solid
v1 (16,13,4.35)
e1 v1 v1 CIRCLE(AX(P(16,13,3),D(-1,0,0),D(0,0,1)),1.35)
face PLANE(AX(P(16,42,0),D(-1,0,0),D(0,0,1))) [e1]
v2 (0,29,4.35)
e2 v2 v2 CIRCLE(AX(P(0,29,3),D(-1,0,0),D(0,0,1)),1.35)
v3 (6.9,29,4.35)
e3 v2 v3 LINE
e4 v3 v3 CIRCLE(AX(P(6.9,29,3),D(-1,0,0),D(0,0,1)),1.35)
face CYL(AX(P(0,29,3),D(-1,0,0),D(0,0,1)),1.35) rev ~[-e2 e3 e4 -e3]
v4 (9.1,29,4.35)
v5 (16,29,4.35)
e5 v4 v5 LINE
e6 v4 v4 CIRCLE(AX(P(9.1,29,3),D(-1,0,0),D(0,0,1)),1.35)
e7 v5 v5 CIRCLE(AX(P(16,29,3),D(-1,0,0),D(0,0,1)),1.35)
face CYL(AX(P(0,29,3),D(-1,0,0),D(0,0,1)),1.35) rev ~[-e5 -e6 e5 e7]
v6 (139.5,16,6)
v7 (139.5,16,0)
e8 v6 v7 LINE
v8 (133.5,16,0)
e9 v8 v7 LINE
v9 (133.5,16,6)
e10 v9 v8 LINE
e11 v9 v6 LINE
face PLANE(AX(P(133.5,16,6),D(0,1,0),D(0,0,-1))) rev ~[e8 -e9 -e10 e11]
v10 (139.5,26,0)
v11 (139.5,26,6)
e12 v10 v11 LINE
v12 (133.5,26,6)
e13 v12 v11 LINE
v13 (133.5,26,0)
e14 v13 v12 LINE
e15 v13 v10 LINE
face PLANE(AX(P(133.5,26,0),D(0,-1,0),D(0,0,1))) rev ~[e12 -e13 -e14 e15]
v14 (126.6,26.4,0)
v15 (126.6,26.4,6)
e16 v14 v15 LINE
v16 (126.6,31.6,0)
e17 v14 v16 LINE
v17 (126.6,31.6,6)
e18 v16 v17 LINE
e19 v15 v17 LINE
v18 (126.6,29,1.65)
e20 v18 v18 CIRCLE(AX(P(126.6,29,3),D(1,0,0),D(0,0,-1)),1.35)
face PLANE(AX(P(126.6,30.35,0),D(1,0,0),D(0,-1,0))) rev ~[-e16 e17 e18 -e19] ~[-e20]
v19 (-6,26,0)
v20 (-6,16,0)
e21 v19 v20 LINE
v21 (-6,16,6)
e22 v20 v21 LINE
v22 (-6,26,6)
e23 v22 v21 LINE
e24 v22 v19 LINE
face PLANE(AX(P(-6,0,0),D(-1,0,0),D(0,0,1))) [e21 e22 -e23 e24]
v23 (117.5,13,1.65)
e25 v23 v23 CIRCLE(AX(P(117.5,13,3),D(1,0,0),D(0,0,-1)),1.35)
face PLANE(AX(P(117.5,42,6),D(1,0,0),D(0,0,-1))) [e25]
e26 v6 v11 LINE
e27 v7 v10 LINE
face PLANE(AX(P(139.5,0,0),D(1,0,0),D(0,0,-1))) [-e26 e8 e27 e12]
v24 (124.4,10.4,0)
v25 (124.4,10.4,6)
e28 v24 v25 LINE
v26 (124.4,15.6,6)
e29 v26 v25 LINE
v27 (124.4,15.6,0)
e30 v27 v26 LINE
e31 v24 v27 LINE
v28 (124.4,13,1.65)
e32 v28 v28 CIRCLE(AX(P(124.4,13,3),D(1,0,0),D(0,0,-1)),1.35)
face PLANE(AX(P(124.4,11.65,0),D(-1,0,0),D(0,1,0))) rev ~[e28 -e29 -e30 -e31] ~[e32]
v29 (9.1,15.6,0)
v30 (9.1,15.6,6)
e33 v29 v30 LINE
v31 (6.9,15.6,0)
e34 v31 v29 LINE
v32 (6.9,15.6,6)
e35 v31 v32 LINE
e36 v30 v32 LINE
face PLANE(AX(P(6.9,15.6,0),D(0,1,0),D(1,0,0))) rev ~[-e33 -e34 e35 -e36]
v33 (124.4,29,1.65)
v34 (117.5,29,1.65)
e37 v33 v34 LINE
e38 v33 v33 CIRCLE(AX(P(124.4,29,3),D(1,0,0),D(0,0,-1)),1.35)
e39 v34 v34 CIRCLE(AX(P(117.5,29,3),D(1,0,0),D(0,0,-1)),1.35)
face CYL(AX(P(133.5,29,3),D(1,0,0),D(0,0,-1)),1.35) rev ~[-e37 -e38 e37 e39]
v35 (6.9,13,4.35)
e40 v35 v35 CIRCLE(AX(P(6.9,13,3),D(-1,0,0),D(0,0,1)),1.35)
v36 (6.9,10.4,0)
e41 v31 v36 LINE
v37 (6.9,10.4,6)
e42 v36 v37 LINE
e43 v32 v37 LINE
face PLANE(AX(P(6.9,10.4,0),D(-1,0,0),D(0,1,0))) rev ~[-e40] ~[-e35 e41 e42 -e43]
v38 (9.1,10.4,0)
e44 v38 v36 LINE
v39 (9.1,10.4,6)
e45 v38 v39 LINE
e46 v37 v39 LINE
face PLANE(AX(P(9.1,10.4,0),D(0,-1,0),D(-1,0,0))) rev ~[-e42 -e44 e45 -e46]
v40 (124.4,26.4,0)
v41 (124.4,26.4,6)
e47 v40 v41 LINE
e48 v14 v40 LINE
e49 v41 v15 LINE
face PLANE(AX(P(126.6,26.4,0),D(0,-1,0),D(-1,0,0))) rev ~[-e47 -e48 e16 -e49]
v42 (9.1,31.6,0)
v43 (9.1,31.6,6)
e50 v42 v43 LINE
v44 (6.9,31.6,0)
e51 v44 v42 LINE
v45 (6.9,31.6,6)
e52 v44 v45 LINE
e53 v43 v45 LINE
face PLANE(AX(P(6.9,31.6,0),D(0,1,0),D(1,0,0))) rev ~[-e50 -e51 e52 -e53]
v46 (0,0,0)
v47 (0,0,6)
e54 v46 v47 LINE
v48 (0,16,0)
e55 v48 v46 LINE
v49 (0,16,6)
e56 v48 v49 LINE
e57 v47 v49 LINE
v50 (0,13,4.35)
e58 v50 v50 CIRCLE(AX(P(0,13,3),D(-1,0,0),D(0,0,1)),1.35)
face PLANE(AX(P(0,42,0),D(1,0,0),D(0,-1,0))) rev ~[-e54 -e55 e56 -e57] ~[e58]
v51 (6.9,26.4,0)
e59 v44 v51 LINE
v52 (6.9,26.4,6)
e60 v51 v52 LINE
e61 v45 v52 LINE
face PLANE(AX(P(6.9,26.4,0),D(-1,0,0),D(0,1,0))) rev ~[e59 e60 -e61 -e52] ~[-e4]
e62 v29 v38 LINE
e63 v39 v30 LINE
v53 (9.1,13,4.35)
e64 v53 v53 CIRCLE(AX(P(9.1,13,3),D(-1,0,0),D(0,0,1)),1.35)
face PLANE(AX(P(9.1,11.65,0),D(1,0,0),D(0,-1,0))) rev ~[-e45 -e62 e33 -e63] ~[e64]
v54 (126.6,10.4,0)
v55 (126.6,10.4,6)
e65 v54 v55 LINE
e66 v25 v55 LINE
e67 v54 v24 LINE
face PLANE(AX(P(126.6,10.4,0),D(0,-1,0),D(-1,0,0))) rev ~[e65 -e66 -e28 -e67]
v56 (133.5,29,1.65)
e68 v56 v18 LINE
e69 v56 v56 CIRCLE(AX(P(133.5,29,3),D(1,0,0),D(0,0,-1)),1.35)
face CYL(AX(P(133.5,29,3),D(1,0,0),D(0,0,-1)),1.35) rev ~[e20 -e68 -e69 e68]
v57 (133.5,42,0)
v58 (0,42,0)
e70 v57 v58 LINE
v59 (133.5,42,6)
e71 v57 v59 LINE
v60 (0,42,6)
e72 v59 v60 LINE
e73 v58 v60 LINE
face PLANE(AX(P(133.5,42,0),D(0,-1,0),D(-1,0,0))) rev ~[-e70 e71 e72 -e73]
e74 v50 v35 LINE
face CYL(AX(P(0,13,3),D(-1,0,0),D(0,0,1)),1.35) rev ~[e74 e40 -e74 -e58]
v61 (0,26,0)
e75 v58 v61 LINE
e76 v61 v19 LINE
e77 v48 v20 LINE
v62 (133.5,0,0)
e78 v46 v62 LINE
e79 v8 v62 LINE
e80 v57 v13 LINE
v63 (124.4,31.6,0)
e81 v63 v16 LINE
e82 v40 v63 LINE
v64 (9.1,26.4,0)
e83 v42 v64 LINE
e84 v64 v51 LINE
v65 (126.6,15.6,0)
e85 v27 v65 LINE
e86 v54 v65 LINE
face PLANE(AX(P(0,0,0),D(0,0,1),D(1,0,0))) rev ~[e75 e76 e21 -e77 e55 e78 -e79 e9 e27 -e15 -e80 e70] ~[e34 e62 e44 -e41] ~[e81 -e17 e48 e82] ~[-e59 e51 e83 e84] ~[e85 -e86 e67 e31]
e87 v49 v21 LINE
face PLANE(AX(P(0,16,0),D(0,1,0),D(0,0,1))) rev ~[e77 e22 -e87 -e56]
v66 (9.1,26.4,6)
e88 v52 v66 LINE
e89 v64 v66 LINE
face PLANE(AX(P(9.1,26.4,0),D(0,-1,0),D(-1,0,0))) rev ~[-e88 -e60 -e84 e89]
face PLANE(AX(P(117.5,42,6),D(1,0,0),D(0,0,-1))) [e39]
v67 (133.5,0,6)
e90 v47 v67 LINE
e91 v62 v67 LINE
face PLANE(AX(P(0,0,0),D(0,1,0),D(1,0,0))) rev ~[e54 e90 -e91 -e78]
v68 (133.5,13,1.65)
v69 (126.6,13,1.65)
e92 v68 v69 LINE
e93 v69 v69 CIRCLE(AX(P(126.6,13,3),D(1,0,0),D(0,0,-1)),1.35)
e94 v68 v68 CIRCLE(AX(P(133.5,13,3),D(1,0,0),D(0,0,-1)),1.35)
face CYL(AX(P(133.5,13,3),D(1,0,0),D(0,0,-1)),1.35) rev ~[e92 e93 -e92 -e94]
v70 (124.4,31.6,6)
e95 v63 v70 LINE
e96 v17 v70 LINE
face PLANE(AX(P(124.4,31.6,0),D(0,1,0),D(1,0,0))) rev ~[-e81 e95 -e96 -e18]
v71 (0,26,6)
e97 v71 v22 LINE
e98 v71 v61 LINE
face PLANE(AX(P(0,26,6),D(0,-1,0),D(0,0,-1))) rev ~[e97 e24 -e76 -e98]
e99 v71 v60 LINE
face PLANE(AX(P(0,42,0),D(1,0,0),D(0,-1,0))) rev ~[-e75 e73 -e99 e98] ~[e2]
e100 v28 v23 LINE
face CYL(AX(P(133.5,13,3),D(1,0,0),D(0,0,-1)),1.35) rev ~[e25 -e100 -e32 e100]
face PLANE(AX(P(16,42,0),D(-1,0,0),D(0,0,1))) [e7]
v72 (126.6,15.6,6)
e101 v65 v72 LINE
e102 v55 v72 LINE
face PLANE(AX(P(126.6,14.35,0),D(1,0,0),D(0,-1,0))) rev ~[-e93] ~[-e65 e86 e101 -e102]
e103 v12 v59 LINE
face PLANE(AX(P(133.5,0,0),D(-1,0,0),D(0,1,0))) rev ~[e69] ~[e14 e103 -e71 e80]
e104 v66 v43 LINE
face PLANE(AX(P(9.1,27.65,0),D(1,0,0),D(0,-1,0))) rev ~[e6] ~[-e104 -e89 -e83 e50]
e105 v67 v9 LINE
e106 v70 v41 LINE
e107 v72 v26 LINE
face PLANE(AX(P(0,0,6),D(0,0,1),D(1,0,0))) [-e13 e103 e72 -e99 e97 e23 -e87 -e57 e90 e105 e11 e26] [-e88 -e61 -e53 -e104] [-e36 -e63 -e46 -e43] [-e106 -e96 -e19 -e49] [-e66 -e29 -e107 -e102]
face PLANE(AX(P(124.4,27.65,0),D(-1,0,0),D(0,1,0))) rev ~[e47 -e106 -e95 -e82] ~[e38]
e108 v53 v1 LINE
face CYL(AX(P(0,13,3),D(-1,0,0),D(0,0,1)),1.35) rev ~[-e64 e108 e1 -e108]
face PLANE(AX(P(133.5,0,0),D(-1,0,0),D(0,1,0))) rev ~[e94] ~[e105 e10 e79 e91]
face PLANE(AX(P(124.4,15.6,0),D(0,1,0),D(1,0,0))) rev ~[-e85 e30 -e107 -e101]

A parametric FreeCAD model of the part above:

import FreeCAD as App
import Part
import Sketcher

doc = App.newDocument("Part")
body = doc.addObject("PartDesign::Body", "Body")

# Sketch on XY plane
sketch1 = doc.addObject("Sketcher::SketchObject", "Sketch")
body.addObject(sketch1)
sketch1.AttachmentSupport = (doc.XY_Plane, [""])
sketch1.MapMode = "FlatFace"
sketch1.addGeometry(Part.LineSegment(App.Vector(0, 42, 0), App.Vector(0, 0, 0)), False)
sketch1.addGeometry(Part.LineSegment(App.Vector(0, 0, 0), App.Vector(134, 0, 0)), False)
sketch1.addGeometry(Part.LineSegment(App.Vector(134, 0, 0), App.Vector(134, 42, 0)), False)
sketch1.addGeometry(Part.LineSegment(App.Vector(134, 42, 0), App.Vector(0, 42, 0)), False)
sketch1.addConstraint(Sketcher.Constraint("Coincident", 0, 2, 1, 1))
sketch1.addConstraint(Sketcher.Constraint("Coincident", 1, 2, 2, 1))
sketch1.addConstraint(Sketcher.Constraint("Coincident", 2, 2, 3, 1))
sketch1.addConstraint(Sketcher.Constraint("Coincident", 3, 2, 0, 1))
sketch1.addConstraint(Sketcher.Constraint("Vertical", 0))
sketch1.addConstraint(Sketcher.Constraint("Horizontal", 1))
sketch1.addConstraint(Sketcher.Constraint("Vertical", 2))
sketch1.addConstraint(Sketcher.Constraint("Horizontal", 3))
sketch1.addConstraint(Sketcher.Constraint("Coincident", 0, 2, -1, 1))
sketch1.addConstraint(Sketcher.Constraint("DistanceY", 0, 2, 0, 1, 42.0))
sketch1.addConstraint(Sketcher.Constraint("DistanceX", 1, 1, 1, 2, 133.5))
pad1 = doc.addObject("PartDesign::Pad", "Pad")
body.addObject(pad1)
pad1.Profile = sketch1
pad1.Length = 6

# Sketch on YZ plane
sketch2 = doc.addObject("Sketcher::SketchObject", "Sketch001")
body.addObject(sketch2)
sketch2.AttachmentSupport = (doc.YZ_Plane, [""])
sketch2.MapMode = "FlatFace"
sketch2.AttachmentOffset = App.Placement(App.Vector(0, 0, 133.5), App.Rotation())
sketch2.addGeometry(Part.LineSegment(App.Vector(16, 6, 0), App.Vector(16, 0, 0)), False)
sketch2.addGeometry(Part.LineSegment(App.Vector(16, 0, 0), App.Vector(26, 0, 0)), False)
sketch2.addGeometry(Part.LineSegment(App.Vector(26, 0, 0), App.Vector(26, 6, 0)), False)
sketch2.addGeometry(Part.LineSegment(App.Vector(26, 6, 0), App.Vector(16, 6, 0)), False)
sketch2.addConstraint(Sketcher.Constraint("Coincident", 0, 2, 1, 1))
sketch2.addConstraint(Sketcher.Constraint("Coincident", 1, 2, 2, 1))
sketch2.addConstraint(Sketcher.Constraint("Coincident", 2, 2, 3, 1))
sketch2.addConstraint(Sketcher.Constraint("Coincident", 3, 2, 0, 1))
sketch2.addConstraint(Sketcher.Constraint("Vertical", 0))
sketch2.addConstraint(Sketcher.Constraint("Horizontal", 1))
sketch2.addConstraint(Sketcher.Constraint("Vertical", 2))
sketch2.addConstraint(Sketcher.Constraint("Horizontal", 3))
sketch2.addConstraint(Sketcher.Constraint("PointOnObject", 0, 2, -1))
sketch2.addConstraint(Sketcher.Constraint("DistanceX", 1, 1, 1, 2, 10.0))
sketch2.addConstraint(Sketcher.Constraint("DistanceY", 0, 2, 0, 1, 6.0))
sketch2.addConstraint(Sketcher.Constraint("DistanceX", -1, 1, 0, 2, 16.0))
pad2 = doc.addObject("PartDesign::Pad", "Pad001")
body.addObject(pad2)
pad2.Profile = sketch2
pad2.Length = 6

# Sketch on YZ plane
sketch3 = doc.addObject("Sketcher::SketchObject", "Sketch002")
body.addObject(sketch3)
sketch3.AttachmentSupport = (doc.YZ_Plane, [""])
sketch3.MapMode = "FlatFace"
sketch3.addGeometry(Part.LineSegment(App.Vector(16, 6, 0), App.Vector(26, 6, 0)), False)
sketch3.addGeometry(Part.LineSegment(App.Vector(26, 6, 0), App.Vector(26, 0, 0)), False)
sketch3.addGeometry(Part.LineSegment(App.Vector(26, 0, 0), App.Vector(16, 0, 0)), False)
sketch3.addGeometry(Part.LineSegment(App.Vector(16, 0, 0), App.Vector(16, 6, 0)), False)
sketch3.addConstraint(Sketcher.Constraint("Coincident", 0, 2, 1, 1))
sketch3.addConstraint(Sketcher.Constraint("Coincident", 1, 2, 2, 1))
sketch3.addConstraint(Sketcher.Constraint("Coincident", 2, 2, 3, 1))
sketch3.addConstraint(Sketcher.Constraint("Coincident", 3, 2, 0, 1))
sketch3.addConstraint(Sketcher.Constraint("Horizontal", 0))
sketch3.addConstraint(Sketcher.Constraint("Vertical", 1))
sketch3.addConstraint(Sketcher.Constraint("Horizontal", 2))
sketch3.addConstraint(Sketcher.Constraint("Vertical", 3))
sketch3.addConstraint(Sketcher.Constraint("PointOnObject", 1, 2, -1))
sketch3.addConstraint(Sketcher.Constraint("DistanceX", 0, 1, 0, 2, 10.0))
sketch3.addConstraint(Sketcher.Constraint("DistanceY", 1, 2, 1, 1, 6.0))
sketch3.addConstraint(Sketcher.Constraint("DistanceX", -1, 1, 0, 2, 26.0))
pad3 = doc.addObject("PartDesign::Pad", "Pad002")
body.addObject(pad3)
pad3.Profile = sketch3
pad3.Length = 6
pad3.Reversed = True

# Sketch on YZ plane
sketch4 = doc.addObject("Sketcher::SketchObject", "Sketch003")
body.addObject(sketch4)
sketch4.AttachmentSupport = (doc.YZ_Plane, [""])
sketch4.MapMode = "FlatFace"
sketch4.addGeometry(Part.Circle(App.Vector(29, 3, 0), App.Vector(0, 0, 1), 1.4), False)
sketch4.addGeometry(Part.Circle(App.Vector(13, 3, 0), App.Vector(0, 0, 1), 1.4), False)
sketch4.addConstraint(Sketcher.Constraint("Equal", 0, 1))
sketch4.addConstraint(Sketcher.Constraint("Horizontal", 0, 3, 1, 3))
sketch4.addConstraint(Sketcher.Constraint("Diameter", 0, 2.7))
sketch4.addConstraint(Sketcher.Constraint("DistanceX", -1, 1, 0, 3, 29.0))
sketch4.addConstraint(Sketcher.Constraint("DistanceY", -1, 1, 0, 3, 3.0))
sketch4.addConstraint(Sketcher.Constraint("DistanceX", -1, 1, 1, 3, 13.0))
pocket1 = doc.addObject("PartDesign::Pocket", "Pocket")
body.addObject(pocket1)
pocket1.Profile = sketch4
pocket1.Length = 16
pocket1.Reversed = True

# Sketch on YZ plane
sketch5 = doc.addObject("Sketcher::SketchObject", "Sketch004")
body.addObject(sketch5)
sketch5.AttachmentSupport = (doc.YZ_Plane, [""])
sketch5.MapMode = "FlatFace"
sketch5.AttachmentOffset = App.Placement(App.Vector(0, 0, 133.5), App.Rotation())
sketch5.addGeometry(Part.Circle(App.Vector(29, 3, 0), App.Vector(0, 0, 1), 1.4), False)
sketch5.addGeometry(Part.Circle(App.Vector(13, 3, 0), App.Vector(0, 0, 1), 1.4), False)
sketch5.addConstraint(Sketcher.Constraint("Equal", 0, 1))
sketch5.addConstraint(Sketcher.Constraint("Horizontal", 0, 3, 1, 3))
sketch5.addConstraint(Sketcher.Constraint("Diameter", 0, 2.7))
sketch5.addConstraint(Sketcher.Constraint("DistanceX", -1, 1, 0, 3, 29.0))
sketch5.addConstraint(Sketcher.Constraint("DistanceY", -1, 1, 0, 3, 3.0))
sketch5.addConstraint(Sketcher.Constraint("DistanceX", -1, 1, 1, 3, 13.0))
pocket2 = doc.addObject("PartDesign::Pocket", "Pocket001")
body.addObject(pocket2)
pocket2.Profile = sketch5
pocket2.Length = 16

# Sketch on XY plane
sketch6 = doc.addObject("Sketcher::SketchObject", "Sketch005")
body.addObject(sketch6)
sketch6.AttachmentSupport = (doc.XY_Plane, [""])
sketch6.MapMode = "FlatFace"
sketch6.addGeometry(Part.LineSegment(App.Vector(126.6, 10.4, 0), App.Vector(124.4, 10.4, 0)), False)
sketch6.addGeometry(Part.LineSegment(App.Vector(124.4, 10.4, 0), App.Vector(124.4, 15.6, 0)), False)
sketch6.addGeometry(Part.LineSegment(App.Vector(124.4, 15.6, 0), App.Vector(126.6, 15.6, 0)), False)
sketch6.addGeometry(Part.LineSegment(App.Vector(126.6, 15.6, 0), App.Vector(126.6, 10.4, 0)), False)
sketch6.addGeometry(Part.LineSegment(App.Vector(6.9, 10.4, 0), App.Vector(6.9, 15.6, 0)), False)
sketch6.addGeometry(Part.LineSegment(App.Vector(6.9, 15.6, 0), App.Vector(9.1, 15.6, 0)), False)
sketch6.addGeometry(Part.LineSegment(App.Vector(9.1, 15.6, 0), App.Vector(9.1, 10.4, 0)), False)
sketch6.addGeometry(Part.LineSegment(App.Vector(9.1, 10.4, 0), App.Vector(6.9, 10.4, 0)), False)
sketch6.addGeometry(Part.LineSegment(App.Vector(126.6, 26.4, 0), App.Vector(124.4, 26.4, 0)), False)
sketch6.addGeometry(Part.LineSegment(App.Vector(124.4, 26.4, 0), App.Vector(124.4, 31.6, 0)), False)
sketch6.addGeometry(Part.LineSegment(App.Vector(124.4, 31.6, 0), App.Vector(126.6, 31.6, 0)), False)
sketch6.addGeometry(Part.LineSegment(App.Vector(126.6, 31.6, 0), App.Vector(126.6, 26.4, 0)), False)
sketch6.addGeometry(Part.LineSegment(App.Vector(6.9, 26.4, 0), App.Vector(6.9, 31.6, 0)), False)
sketch6.addGeometry(Part.LineSegment(App.Vector(6.9, 31.6, 0), App.Vector(9.1, 31.6, 0)), False)
sketch6.addGeometry(Part.LineSegment(App.Vector(9.1, 31.6, 0), App.Vector(9.1, 26.4, 0)), False)
sketch6.addGeometry(Part.LineSegment(App.Vector(9.1, 26.4, 0), App.Vector(6.9, 26.4, 0)), False)
sketch6.addConstraint(Sketcher.Constraint("Coincident", 0, 2, 1, 1))
sketch6.addConstraint(Sketcher.Constraint("Coincident", 1, 2, 2, 1))
sketch6.addConstraint(Sketcher.Constraint("Coincident", 2, 2, 3, 1))
sketch6.addConstraint(Sketcher.Constraint("Coincident", 3, 2, 0, 1))
sketch6.addConstraint(Sketcher.Constraint("Coincident", 4, 2, 5, 1))
sketch6.addConstraint(Sketcher.Constraint("Coincident", 5, 2, 6, 1))
sketch6.addConstraint(Sketcher.Constraint("Coincident", 6, 2, 7, 1))
sketch6.addConstraint(Sketcher.Constraint("Coincident", 7, 2, 4, 1))
sketch6.addConstraint(Sketcher.Constraint("Coincident", 8, 2, 9, 1))
sketch6.addConstraint(Sketcher.Constraint("Coincident", 9, 2, 10, 1))
sketch6.addConstraint(Sketcher.Constraint("Coincident", 10, 2, 11, 1))
sketch6.addConstraint(Sketcher.Constraint("Coincident", 11, 2, 8, 1))
sketch6.addConstraint(Sketcher.Constraint("Coincident", 12, 2, 13, 1))
sketch6.addConstraint(Sketcher.Constraint("Coincident", 13, 2, 14, 1))
sketch6.addConstraint(Sketcher.Constraint("Coincident", 14, 2, 15, 1))
sketch6.addConstraint(Sketcher.Constraint("Coincident", 15, 2, 12, 1))
sketch6.addConstraint(Sketcher.Constraint("Horizontal", 0))
sketch6.addConstraint(Sketcher.Constraint("Vertical", 1))
sketch6.addConstraint(Sketcher.Constraint("Horizontal", 2))
sketch6.addConstraint(Sketcher.Constraint("Vertical", 3))
sketch6.addConstraint(Sketcher.Constraint("Vertical", 4))
sketch6.addConstraint(Sketcher.Constraint("Horizontal", 5))
sketch6.addConstraint(Sketcher.Constraint("Vertical", 6))
sketch6.addConstraint(Sketcher.Constraint("Horizontal", 7))
sketch6.addConstraint(Sketcher.Constraint("Horizontal", 8))
sketch6.addConstraint(Sketcher.Constraint("Vertical", 9))
sketch6.addConstraint(Sketcher.Constraint("Horizontal", 10))
sketch6.addConstraint(Sketcher.Constraint("Vertical", 11))
sketch6.addConstraint(Sketcher.Constraint("Vertical", 12))
sketch6.addConstraint(Sketcher.Constraint("Horizontal", 13))
sketch6.addConstraint(Sketcher.Constraint("Vertical", 14))
sketch6.addConstraint(Sketcher.Constraint("Horizontal", 15))
sketch6.addConstraint(Sketcher.Constraint("Horizontal", 2, 2, 4, 2))
sketch6.addConstraint(Sketcher.Constraint("Horizontal", 3, 2, 6, 2))
sketch6.addConstraint(Sketcher.Constraint("Horizontal", 10, 2, 12, 2))
sketch6.addConstraint(Sketcher.Constraint("Horizontal", 11, 2, 14, 2))
sketch6.addConstraint(Sketcher.Constraint("Vertical", 1, 2, 8, 2))
sketch6.addConstraint(Sketcher.Constraint("Vertical", 3, 2, 10, 2))
sketch6.addConstraint(Sketcher.Constraint("Vertical", 7, 2, 12, 2))
sketch6.addConstraint(Sketcher.Constraint("Vertical", 6, 2, 13, 2))
sketch6.addConstraint(Sketcher.Constraint("Equal", 2, 5))
sketch6.addConstraint(Sketcher.Constraint("Equal", 6, 9))
sketch6.addConstraint(Sketcher.Constraint("DistanceX", 0, 2, 0, 1, 2.2))
sketch6.addConstraint(Sketcher.Constraint("DistanceY", 1, 1, 1, 2, 5.2))
sketch6.addConstraint(Sketcher.Constraint("DistanceY", 0, 2, 8, 2, 16.0))
sketch6.addConstraint(Sketcher.Constraint("DistanceX", -1, 1, 0, 2, 124.4))
sketch6.addConstraint(Sketcher.Constraint("DistanceY", -1, 1, 0, 2, 10.4))
sketch6.addConstraint(Sketcher.Constraint("DistanceX", -1, 1, 4, 2, 6.9))
pocket3 = doc.addObject("PartDesign::Pocket", "Pocket002")
body.addObject(pocket3)
pocket3.Profile = sketch6
pocket3.Length = 16
pocket3.Reversed = True

# Sketch on XY plane
sketch7 = doc.addObject("Sketcher::SketchObject", "Sketch006")
body.addObject(sketch7)
sketch7.AttachmentSupport = (doc.XY_Plane, [""])
sketch7.MapMode = "FlatFace"
sketch7.AttachmentOffset = App.Placement(App.Vector(0, 0, 6), App.Rotation())
sketch7.addGeometry(Part.LineSegment(App.Vector(134, 26, 0), App.Vector(134, 16, 0)), False)
sketch7.addGeometry(Part.LineSegment(App.Vector(134, 16, 0), App.Vector(140, 16, 0)), False)
sketch7.addGeometry(Part.LineSegment(App.Vector(140, 16, 0), App.Vector(140, 26, 0)), False)
sketch7.addGeometry(Part.LineSegment(App.Vector(140, 26, 0), App.Vector(134, 26, 0)), False)
sketch7.addGeometry(Part.LineSegment(App.Vector(-6, 16, 0), App.Vector(0, 16, 0)), False)
sketch7.addGeometry(Part.LineSegment(App.Vector(0, 16, 0), App.Vector(0, 26, 0)), False)
sketch7.addGeometry(Part.LineSegment(App.Vector(0, 26, 0), App.Vector(-6, 26, 0)), False)
sketch7.addGeometry(Part.LineSegment(App.Vector(-6, 26, 0), App.Vector(-6, 16, 0)), False)
sketch7.addConstraint(Sketcher.Constraint("Coincident", 0, 2, 1, 1))
sketch7.addConstraint(Sketcher.Constraint("Coincident", 1, 2, 2, 1))
sketch7.addConstraint(Sketcher.Constraint("Coincident", 2, 2, 3, 1))
sketch7.addConstraint(Sketcher.Constraint("Coincident", 3, 2, 0, 1))
sketch7.addConstraint(Sketcher.Constraint("Coincident", 4, 2, 5, 1))
sketch7.addConstraint(Sketcher.Constraint("Coincident", 5, 2, 6, 1))
sketch7.addConstraint(Sketcher.Constraint("Coincident", 6, 2, 7, 1))
sketch7.addConstraint(Sketcher.Constraint("Coincident", 7, 2, 4, 1))
sketch7.addConstraint(Sketcher.Constraint("Vertical", 0))
sketch7.addConstraint(Sketcher.Constraint("Horizontal", 1))
sketch7.addConstraint(Sketcher.Constraint("Vertical", 2))
sketch7.addConstraint(Sketcher.Constraint("Horizontal", 3))
sketch7.addConstraint(Sketcher.Constraint("Horizontal", 4))
sketch7.addConstraint(Sketcher.Constraint("Vertical", 5))
sketch7.addConstraint(Sketcher.Constraint("Horizontal", 6))
sketch7.addConstraint(Sketcher.Constraint("Vertical", 7))
sketch7.addConstraint(Sketcher.Constraint("PointOnObject", 4, 2, -2))
sketch7.addConstraint(Sketcher.Constraint("Horizontal", 1, 2, 4, 2))
sketch7.addConstraint(Sketcher.Constraint("Horizontal", 3, 2, 5, 2))
sketch7.addConstraint(Sketcher.Constraint("Equal", 3, 4))
sketch7.addConstraint(Sketcher.Constraint("DistanceX", 1, 1, 1, 2, 6.0))
sketch7.addConstraint(Sketcher.Constraint("DistanceY", 0, 2, 0, 1, 10.0))
sketch7.addConstraint(Sketcher.Constraint("DistanceY", -1, 1, 0, 2, 16.0))
sketch7.addConstraint(Sketcher.Constraint("DistanceX", -1, 1, 0, 2, 133.5))
pocket4 = doc.addObject("PartDesign::Pocket", "Pocket003")
body.addObject(pocket4)
pocket4.Profile = sketch7
pocket4.Type = "ThroughAll"

# Sketch on YZ plane
sketch8 = doc.addObject("Sketcher::SketchObject", "Sketch007")
body.addObject(sketch8)
sketch8.AttachmentSupport = (doc.YZ_Plane, [""])
sketch8.MapMode = "FlatFace"
sketch8.AttachmentOffset = App.Placement(App.Vector(0, 0, 133.5), App.Rotation())
sketch8.addGeometry(Part.LineSegment(App.Vector(26, 6, 0), App.Vector(16, 6, 0)), False)
sketch8.addGeometry(Part.LineSegment(App.Vector(16, 6, 0), App.Vector(16, 0, 0)), False)
sketch8.addGeometry(Part.LineSegment(App.Vector(16, 0, 0), App.Vector(26, 0, 0)), False)
sketch8.addGeometry(Part.LineSegment(App.Vector(26, 0, 0), App.Vector(26, 6, 0)), False)
sketch8.addConstraint(Sketcher.Constraint("Coincident", 0, 2, 1, 1))
sketch8.addConstraint(Sketcher.Constraint("Coincident", 1, 2, 2, 1))
sketch8.addConstraint(Sketcher.Constraint("Coincident", 2, 2, 3, 1))
sketch8.addConstraint(Sketcher.Constraint("Coincident", 3, 2, 0, 1))
sketch8.addConstraint(Sketcher.Constraint("Horizontal", 0))
sketch8.addConstraint(Sketcher.Constraint("Vertical", 1))
sketch8.addConstraint(Sketcher.Constraint("Horizontal", 2))
sketch8.addConstraint(Sketcher.Constraint("Vertical", 3))
sketch8.addConstraint(Sketcher.Constraint("PointOnObject", 1, 2, -1))
sketch8.addConstraint(Sketcher.Constraint("DistanceX", 0, 2, 0, 1, 10.0))
sketch8.addConstraint(Sketcher.Constraint("DistanceY", 1, 2, 1, 1, 6.0))
sketch8.addConstraint(Sketcher.Constraint("DistanceX", -1, 1, 0, 2, 16.0))
pad4 = doc.addObject("PartDesign::Pad", "Pad003")
body.addObject(pad4)
pad4.Profile = sketch8
pad4.Length = 6

# Sketch on YZ plane
sketch9 = doc.addObject("Sketcher::SketchObject", "Sketch008")
body.addObject(sketch9)
sketch9.AttachmentSupport = (doc.YZ_Plane, [""])
sketch9.MapMode = "FlatFace"
sketch9.addGeometry(Part.LineSegment(App.Vector(16, 0, 0), App.Vector(16, 6, 0)), False)
sketch9.addGeometry(Part.LineSegment(App.Vector(16, 6, 0), App.Vector(26, 6, 0)), False)
sketch9.addGeometry(Part.LineSegment(App.Vector(26, 6, 0), App.Vector(26, 0, 0)), False)
sketch9.addGeometry(Part.LineSegment(App.Vector(26, 0, 0), App.Vector(16, 0, 0)), False)
sketch9.addConstraint(Sketcher.Constraint("Coincident", 0, 2, 1, 1))
sketch9.addConstraint(Sketcher.Constraint("Coincident", 1, 2, 2, 1))
sketch9.addConstraint(Sketcher.Constraint("Coincident", 2, 2, 3, 1))
sketch9.addConstraint(Sketcher.Constraint("Coincident", 3, 2, 0, 1))
sketch9.addConstraint(Sketcher.Constraint("Vertical", 0))
sketch9.addConstraint(Sketcher.Constraint("Horizontal", 1))
sketch9.addConstraint(Sketcher.Constraint("Vertical", 2))
sketch9.addConstraint(Sketcher.Constraint("Horizontal", 3))
sketch9.addConstraint(Sketcher.Constraint("PointOnObject", 2, 2, -1))
sketch9.addConstraint(Sketcher.Constraint("DistanceX", 1, 1, 1, 2, 10.0))
sketch9.addConstraint(Sketcher.Constraint("DistanceY", 0, 1, 0, 2, 6.0))
sketch9.addConstraint(Sketcher.Constraint("DistanceX", -1, 1, 0, 2, 16.0))
pad5 = doc.addObject("PartDesign::Pad", "Pad004")
body.addObject(pad5)
pad5.Profile = sketch9
pad5.Length = 6
pad5.Reversed = True

doc.recompute()
